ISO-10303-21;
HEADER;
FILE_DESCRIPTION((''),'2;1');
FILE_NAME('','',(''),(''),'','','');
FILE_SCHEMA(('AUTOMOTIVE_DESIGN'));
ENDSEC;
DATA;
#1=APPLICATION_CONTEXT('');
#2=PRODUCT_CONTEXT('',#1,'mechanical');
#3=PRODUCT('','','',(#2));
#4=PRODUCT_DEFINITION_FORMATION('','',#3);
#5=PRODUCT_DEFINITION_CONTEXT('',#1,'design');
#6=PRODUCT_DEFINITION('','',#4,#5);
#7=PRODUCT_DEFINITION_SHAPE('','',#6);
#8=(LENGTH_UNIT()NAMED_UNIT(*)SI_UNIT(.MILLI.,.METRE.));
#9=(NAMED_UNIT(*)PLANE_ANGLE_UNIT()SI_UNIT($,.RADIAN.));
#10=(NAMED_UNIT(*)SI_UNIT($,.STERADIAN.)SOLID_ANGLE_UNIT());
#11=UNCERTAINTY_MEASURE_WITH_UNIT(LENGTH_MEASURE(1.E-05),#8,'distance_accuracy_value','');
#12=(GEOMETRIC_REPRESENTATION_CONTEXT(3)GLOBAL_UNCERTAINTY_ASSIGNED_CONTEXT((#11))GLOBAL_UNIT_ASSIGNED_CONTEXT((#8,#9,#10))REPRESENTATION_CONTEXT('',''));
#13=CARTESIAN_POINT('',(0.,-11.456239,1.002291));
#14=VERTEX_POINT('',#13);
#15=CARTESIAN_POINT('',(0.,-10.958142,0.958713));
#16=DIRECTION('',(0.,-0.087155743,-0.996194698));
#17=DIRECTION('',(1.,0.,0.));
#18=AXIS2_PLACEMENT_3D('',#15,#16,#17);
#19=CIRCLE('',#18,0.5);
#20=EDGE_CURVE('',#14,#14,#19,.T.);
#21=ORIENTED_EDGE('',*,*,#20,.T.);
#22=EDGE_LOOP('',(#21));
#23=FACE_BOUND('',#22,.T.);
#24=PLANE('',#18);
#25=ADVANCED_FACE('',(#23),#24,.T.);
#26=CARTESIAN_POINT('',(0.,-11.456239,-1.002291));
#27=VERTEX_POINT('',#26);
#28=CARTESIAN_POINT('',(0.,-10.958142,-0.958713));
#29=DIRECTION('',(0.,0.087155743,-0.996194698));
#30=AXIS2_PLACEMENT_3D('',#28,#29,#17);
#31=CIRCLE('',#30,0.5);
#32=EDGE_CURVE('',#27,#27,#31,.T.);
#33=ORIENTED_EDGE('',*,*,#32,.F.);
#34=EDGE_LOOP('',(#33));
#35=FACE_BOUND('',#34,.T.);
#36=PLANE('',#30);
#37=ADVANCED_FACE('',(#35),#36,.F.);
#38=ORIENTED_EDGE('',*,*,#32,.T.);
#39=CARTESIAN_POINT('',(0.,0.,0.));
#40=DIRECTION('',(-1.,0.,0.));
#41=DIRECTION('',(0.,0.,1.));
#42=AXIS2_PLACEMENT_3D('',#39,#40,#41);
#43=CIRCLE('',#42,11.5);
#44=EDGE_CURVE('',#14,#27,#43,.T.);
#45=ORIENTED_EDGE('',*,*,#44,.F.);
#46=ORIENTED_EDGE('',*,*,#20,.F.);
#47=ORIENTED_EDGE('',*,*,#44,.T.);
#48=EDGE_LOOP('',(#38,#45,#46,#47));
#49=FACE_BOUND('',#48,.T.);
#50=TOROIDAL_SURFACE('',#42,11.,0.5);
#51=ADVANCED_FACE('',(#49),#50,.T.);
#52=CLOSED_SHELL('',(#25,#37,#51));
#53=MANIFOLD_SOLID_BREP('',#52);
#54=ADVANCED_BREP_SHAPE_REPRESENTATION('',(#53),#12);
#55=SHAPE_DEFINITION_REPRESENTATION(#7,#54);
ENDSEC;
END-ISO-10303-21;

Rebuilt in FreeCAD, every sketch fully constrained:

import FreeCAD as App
import Part
import Sketcher

V = App.Vector
Q = App.Units.Quantity

doc = App.newDocument("Part")
body = doc.addObject("PartDesign::Body", "Body")

# Sketch on XY plane
sketch1 = body.newObject("Sketcher::SketchObject", "Sketch")
sketch1.AttachmentSupport = (doc.getObject("XY_Plane"), [""])
sketch1.MapMode = "FlatFace"
sketch1.addGeometry(Part.Circle(V(0, 11, 0), V(0, 0, 1), 0.5), False)
sketch1.addConstraint([
    Sketcher.Constraint("PointOnObject", 0, 3, -2),
    Sketcher.Constraint("Diameter", 0, Q("1 mm")),
    Sketcher.Constraint("DistanceY", -1, 1, 0, 3, Q("11 mm")),
])
revolution = body.newObject("PartDesign::Revolution", "Revolution")
revolution.Profile = sketch1
revolution.ReferenceAxis = (sketch1, ["H_Axis"])
revolution.Angle = 175
revolution.Reversed = True

# Sketch on XY plane
sketch2 = body.newObject("Sketcher::SketchObject", "Sketch001")
sketch2.AttachmentSupport = (doc.getObject("XY_Plane"), [""])
sketch2.MapMode = "FlatFace"
sketch2.addGeometry(Part.Circle(V(0, 11, 0), V(0, 0, 1), 0.5), False)
sketch2.addConstraint([
    Sketcher.Constraint("PointOnObject", 0, 3, -2),
    Sketcher.Constraint("Diameter", 0, Q("1 mm")),
    Sketcher.Constraint("DistanceY", -1, 1, 0, 3, Q("11 mm")),
])
revolution2 = body.newObject("PartDesign::Revolution", "Revolution001")
revolution2.Profile = sketch2
revolution2.ReferenceAxis = (sketch2, ["H_Axis"])
revolution2.Angle = 175

doc.recompute()
